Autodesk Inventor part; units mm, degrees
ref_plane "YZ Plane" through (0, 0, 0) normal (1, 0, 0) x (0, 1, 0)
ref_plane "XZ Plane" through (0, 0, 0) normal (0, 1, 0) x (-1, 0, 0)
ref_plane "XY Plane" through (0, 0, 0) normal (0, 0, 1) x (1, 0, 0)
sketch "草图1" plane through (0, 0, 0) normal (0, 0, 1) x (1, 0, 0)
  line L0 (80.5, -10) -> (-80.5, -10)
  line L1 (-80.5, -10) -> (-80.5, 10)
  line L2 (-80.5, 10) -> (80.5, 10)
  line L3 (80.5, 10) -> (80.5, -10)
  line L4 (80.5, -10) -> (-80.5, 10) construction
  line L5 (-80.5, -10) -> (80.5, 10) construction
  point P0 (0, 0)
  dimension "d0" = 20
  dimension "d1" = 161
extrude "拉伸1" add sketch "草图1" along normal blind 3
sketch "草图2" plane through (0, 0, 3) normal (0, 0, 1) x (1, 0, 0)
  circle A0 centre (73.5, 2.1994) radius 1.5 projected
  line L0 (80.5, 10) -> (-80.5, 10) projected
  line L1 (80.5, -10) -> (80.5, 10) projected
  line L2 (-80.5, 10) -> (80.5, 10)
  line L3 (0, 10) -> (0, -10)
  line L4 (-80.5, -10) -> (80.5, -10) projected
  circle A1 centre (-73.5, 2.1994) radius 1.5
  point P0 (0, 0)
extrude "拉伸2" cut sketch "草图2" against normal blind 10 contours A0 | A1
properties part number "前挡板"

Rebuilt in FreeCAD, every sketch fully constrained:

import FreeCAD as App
import Part
import Sketcher
Q = App.Units.Quantity


def add_polygon(sketch, points):
    """Adds a closed chain of lines whose ends are joined by coincident constraints."""
    first, n = sketch.GeometryCount, len(points)
    for a, b in zip(points, points[1:] + points[:1]):
        sketch.addGeometry(Part.LineSegment(App.Vector(*a, 0), App.Vector(*b, 0)), False)
    for i in range(n):
        sketch.addConstraint(Sketcher.Constraint("Coincident", first + i, 2, first + (i + 1) % n, 1))

doc = App.newDocument("Part")
body = doc.addObject("PartDesign::Body", "Body")

# Sketch on XY plane
sketch1 = body.newObject("Sketcher::SketchObject", "Sketch")
sketch1.AttachmentSupport = (doc.getObject("XY_Plane"), [""])
sketch1.MapMode = "FlatFace"
add_polygon(sketch1, [(-80.5, -10), (80.5, -10), (80.5, 10), (-80.5, 10)])  # lines 0-3
sketch1.addConstraint(Sketcher.Constraint("Horizontal", 0))
sketch1.addConstraint(Sketcher.Constraint("Vertical", 1))
sketch1.addConstraint(Sketcher.Constraint("Horizontal", 2))
sketch1.addConstraint(Sketcher.Constraint("Vertical", 3))
sketch1.addConstraint(Sketcher.Constraint("Symmetric", 0, 2, 2, 2, -1, 1))
sketch1.addConstraint(Sketcher.Constraint("DistanceX", 0, 1, 0, 2, Q("161 mm")))
sketch1.addConstraint(Sketcher.Constraint("DistanceY", 1, 1, 1, 2, Q("20 mm")))
pad1 = body.newObject("PartDesign::Pad", "Pad")
pad1.Profile = sketch1
pad1.Length = 3

# Sketch on XY plane
sketch2 = body.newObject("Sketcher::SketchObject", "Sketch001")
sketch2.AttachmentSupport = (doc.getObject("XY_Plane"), [""])
sketch2.MapMode = "FlatFace"
sketch2.AttachmentOffset = App.Placement(App.Vector(0, 0, 3), App.Rotation())
sketch2.addGeometry(Part.Circle(App.Vector(73.5, 2.1994, 0), App.Vector(0, 0, 1), 1.5), False)
sketch2.addGeometry(Part.Circle(App.Vector(-73.5, 2.1994, 0), App.Vector(0, 0, 1), 1.5), False)
sketch2.addConstraint(Sketcher.Constraint("Equal", 0, 1))
sketch2.addConstraint(Sketcher.Constraint("Symmetric", 0, 3, 1, 3, -2))
sketch2.addConstraint(Sketcher.Constraint("Diameter", 0, Q("3 mm")))
sketch2.addConstraint(Sketcher.Constraint("DistanceX", 1, 3, 0, 3, Q("147 mm")))
sketch2.addConstraint(Sketcher.Constraint("DistanceY", -1, 1, 0, 3, Q("2.1994 mm")))
pocket1 = body.newObject("PartDesign::Pocket", "Pocket")
pocket1.Profile = sketch2
pocket1.Length = 10

doc.recompute()
